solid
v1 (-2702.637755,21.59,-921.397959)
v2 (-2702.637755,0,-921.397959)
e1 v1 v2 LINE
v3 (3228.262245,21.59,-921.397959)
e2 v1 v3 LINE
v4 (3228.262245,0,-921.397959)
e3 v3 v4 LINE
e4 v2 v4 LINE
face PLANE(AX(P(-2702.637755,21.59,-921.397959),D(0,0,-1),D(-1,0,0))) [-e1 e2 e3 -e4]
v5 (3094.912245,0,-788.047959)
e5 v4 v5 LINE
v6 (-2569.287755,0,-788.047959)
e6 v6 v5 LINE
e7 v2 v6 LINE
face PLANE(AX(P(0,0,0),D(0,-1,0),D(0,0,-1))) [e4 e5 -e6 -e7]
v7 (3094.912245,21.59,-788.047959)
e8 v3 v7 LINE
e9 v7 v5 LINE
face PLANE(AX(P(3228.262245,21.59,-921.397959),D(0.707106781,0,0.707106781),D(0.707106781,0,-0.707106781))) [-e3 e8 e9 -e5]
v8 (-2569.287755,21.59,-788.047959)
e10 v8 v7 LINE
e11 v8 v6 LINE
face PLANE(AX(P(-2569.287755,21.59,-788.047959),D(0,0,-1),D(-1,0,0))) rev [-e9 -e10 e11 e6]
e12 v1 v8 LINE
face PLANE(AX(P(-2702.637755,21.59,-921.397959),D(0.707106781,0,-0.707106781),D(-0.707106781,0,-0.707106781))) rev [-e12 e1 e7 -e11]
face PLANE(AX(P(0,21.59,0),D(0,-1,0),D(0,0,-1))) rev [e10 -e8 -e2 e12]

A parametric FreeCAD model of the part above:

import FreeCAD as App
import Part
import Sketcher
from FreeCAD import Vector
Q = App.Units.Quantity

doc = App.newDocument("Part")
params = doc.addObject("Spreadsheet::Sheet", "Params")
for row, (alias, value) in enumerate([
    ("sketch1_width", "223 in"),
    ("sketch1_width2", "233.5 in"),
    ("pad1_length", "0.85 in"),
], start=1):
    params.set(f"A{row}", alias)
    params.set(f"B{row}", "=" + value)
    params.setAlias(f"B{row}", alias)

body = doc.addObject("PartDesign::Body", "Body")

# Sketch on XZ plane
sketch1 = body.newObject("Sketcher::SketchObject", "Sketch")
sketch1.AttachmentSupport = (doc.getObject("XZ_Plane"), [""])
sketch1.MapMode = "FlatFace"
sketch1.addGeometry(Part.LineSegment(Vector(3228, -921, 0), Vector(-2703, -921, 0)), False)
sketch1.addGeometry(Part.LineSegment(Vector(-2703, -921, 0), Vector(-2569, -788, 0)), False)
sketch1.addGeometry(Part.LineSegment(Vector(-2569, -788, 0), Vector(3095, -788, 0)), False)
sketch1.addGeometry(Part.LineSegment(Vector(3095, -788, 0), Vector(3228, -921, 0)), False)
sketch1.addConstraint(Sketcher.Constraint("Coincident", 0, 2, 1, 1))
sketch1.addConstraint(Sketcher.Constraint("Coincident", 1, 2, 2, 1))
sketch1.addConstraint(Sketcher.Constraint("Coincident", 2, 2, 3, 1))
sketch1.addConstraint(Sketcher.Constraint("Coincident", 3, 2, 0, 1))
sketch1.addConstraint(Sketcher.Constraint("Horizontal", 0))
sketch1.addConstraint(Sketcher.Constraint("Horizontal", 2))
sketch1.addConstraint(Sketcher.Constraint("Perpendicular", 1, 3))
sketch1.addConstraint(Sketcher.Constraint("Equal", 1, 3))
sketch1.addConstraint(Sketcher.Constraint("DistanceX", 2, 1, 2, 2, Q("223 in")))
sketch1.addConstraint(Sketcher.Constraint("DistanceX", 0, 2, 0, 1, Q("233.5 in")))
sketch1.addConstraint(Sketcher.Constraint("DistanceY", 0, 2, -1, 1, 921.397959))
sketch1.addConstraint(Sketcher.Constraint("DistanceX", 0, 2, -1, 1, 2702.637755))
sketch1.setExpression("Constraints[8]", "Params.sketch1_width")
sketch1.setExpression("Constraints[9]", "Params.sketch1_width2")
pad1 = body.newObject("PartDesign::Pad", "Pad")
pad1.Profile = sketch1
pad1.setExpression("Length", "Params.pad1_length")
pad1.Reversed = True

doc.recompute()
